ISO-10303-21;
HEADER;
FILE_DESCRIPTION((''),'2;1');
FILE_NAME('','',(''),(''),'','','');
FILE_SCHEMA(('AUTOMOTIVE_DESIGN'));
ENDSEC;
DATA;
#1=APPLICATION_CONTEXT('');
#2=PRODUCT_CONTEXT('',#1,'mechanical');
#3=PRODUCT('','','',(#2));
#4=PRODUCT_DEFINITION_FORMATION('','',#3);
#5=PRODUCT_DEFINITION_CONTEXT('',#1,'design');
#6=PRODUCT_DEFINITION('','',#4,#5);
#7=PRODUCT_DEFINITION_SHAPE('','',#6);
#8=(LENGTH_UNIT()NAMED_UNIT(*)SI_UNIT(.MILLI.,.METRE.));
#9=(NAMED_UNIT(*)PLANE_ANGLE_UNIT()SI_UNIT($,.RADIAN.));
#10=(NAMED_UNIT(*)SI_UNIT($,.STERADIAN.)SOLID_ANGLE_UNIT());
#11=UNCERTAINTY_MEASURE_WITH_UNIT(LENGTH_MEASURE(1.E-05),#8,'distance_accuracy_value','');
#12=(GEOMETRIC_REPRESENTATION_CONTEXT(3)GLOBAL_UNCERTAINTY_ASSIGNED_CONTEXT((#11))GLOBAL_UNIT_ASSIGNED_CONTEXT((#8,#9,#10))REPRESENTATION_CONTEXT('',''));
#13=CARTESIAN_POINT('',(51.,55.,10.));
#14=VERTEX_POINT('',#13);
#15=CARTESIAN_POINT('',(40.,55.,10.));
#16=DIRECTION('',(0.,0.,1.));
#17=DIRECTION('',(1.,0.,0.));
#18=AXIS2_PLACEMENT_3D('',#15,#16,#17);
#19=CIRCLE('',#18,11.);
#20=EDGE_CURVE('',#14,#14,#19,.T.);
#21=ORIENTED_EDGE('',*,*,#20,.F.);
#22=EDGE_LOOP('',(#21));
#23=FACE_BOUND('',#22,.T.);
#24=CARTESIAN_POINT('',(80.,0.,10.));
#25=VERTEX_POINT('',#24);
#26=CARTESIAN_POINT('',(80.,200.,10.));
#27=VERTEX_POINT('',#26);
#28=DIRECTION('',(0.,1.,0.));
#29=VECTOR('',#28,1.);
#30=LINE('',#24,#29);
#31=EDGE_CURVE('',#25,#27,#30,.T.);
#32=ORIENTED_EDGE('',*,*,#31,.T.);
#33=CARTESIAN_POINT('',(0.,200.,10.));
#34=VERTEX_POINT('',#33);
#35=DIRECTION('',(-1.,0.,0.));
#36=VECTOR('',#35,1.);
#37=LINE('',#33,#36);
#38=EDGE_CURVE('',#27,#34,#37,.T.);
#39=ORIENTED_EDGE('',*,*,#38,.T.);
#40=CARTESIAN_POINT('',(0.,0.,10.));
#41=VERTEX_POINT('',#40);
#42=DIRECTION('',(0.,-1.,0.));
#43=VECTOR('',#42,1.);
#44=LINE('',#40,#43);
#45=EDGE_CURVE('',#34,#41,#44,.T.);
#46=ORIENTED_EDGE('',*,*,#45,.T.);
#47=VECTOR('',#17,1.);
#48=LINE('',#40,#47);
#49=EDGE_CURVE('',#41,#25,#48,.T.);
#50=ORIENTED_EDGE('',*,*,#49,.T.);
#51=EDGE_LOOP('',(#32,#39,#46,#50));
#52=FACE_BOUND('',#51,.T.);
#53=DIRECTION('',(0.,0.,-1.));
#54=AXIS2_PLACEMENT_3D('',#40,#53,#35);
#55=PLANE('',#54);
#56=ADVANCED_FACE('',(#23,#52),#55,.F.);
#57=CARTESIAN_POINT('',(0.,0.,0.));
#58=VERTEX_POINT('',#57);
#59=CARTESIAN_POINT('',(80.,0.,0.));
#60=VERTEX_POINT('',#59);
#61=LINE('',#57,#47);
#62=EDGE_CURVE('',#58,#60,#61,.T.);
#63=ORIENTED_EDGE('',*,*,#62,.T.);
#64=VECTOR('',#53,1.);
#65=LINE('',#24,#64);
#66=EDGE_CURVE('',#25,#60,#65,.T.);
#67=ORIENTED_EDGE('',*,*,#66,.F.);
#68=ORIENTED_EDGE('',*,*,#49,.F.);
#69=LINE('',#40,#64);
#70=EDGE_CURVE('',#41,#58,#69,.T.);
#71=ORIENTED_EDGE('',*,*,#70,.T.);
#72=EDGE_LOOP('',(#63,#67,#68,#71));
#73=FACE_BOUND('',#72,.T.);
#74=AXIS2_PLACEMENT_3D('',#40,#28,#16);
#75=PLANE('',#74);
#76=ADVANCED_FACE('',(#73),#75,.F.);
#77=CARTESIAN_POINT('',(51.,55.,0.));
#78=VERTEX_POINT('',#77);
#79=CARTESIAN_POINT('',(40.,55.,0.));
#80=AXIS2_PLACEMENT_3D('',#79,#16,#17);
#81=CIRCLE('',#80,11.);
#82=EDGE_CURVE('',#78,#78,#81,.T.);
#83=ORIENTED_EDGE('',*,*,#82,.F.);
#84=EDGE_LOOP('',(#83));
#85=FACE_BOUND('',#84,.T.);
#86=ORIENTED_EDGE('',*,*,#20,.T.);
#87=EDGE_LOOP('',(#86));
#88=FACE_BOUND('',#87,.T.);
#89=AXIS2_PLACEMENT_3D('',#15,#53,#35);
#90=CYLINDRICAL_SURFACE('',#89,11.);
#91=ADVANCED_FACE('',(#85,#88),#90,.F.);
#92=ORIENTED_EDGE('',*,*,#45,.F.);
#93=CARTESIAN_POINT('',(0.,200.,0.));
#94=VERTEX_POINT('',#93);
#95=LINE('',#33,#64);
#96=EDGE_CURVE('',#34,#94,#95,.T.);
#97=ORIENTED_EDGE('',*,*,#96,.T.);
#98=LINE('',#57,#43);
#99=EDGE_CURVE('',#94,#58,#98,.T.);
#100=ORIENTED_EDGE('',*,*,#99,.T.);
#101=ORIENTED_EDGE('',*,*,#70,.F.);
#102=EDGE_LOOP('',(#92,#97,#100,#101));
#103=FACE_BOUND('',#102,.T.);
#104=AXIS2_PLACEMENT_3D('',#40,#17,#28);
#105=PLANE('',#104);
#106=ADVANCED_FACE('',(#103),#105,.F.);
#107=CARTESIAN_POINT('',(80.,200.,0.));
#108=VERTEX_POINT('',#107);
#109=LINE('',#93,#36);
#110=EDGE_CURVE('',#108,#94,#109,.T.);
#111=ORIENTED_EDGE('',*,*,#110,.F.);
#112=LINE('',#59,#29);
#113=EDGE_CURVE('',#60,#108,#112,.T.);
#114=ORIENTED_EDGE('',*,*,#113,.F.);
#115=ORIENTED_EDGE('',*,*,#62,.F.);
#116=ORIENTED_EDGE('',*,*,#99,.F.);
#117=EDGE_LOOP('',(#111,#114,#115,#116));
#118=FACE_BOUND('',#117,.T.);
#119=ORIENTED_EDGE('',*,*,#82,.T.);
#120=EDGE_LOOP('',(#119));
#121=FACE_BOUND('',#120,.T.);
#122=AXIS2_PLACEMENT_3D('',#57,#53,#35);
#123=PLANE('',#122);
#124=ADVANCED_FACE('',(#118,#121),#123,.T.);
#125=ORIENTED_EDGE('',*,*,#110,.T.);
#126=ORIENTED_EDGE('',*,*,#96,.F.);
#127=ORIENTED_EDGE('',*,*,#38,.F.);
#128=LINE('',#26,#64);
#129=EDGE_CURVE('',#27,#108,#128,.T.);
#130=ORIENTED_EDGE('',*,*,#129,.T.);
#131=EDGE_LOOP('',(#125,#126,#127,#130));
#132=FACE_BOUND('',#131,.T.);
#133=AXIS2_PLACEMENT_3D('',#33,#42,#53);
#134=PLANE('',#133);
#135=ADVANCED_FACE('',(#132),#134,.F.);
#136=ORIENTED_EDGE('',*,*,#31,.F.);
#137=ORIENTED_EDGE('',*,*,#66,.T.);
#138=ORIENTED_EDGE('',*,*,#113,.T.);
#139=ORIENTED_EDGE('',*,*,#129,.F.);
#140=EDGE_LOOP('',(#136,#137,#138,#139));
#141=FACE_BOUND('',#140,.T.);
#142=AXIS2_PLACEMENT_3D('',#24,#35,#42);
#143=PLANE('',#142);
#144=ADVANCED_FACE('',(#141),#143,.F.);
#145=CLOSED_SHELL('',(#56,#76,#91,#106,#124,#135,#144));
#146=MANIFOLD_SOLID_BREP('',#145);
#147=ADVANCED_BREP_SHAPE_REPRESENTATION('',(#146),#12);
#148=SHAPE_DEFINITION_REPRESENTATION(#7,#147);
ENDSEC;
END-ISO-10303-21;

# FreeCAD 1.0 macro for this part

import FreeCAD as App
import Part
import Sketcher


def add_polygon(sketch, points):
    """Adds a closed chain of lines whose ends are joined by coincident constraints."""
    first, n = sketch.GeometryCount, len(points)
    for a, b in zip(points, points[1:] + points[:1]):
        sketch.addGeometry(Part.LineSegment(App.Vector(*a, 0), App.Vector(*b, 0)), False)
    for i in range(n):
        sketch.addConstraint(Sketcher.Constraint("Coincident", first + i, 2, first + (i + 1) % n, 1))

doc = App.newDocument("Part")
body = doc.addObject("PartDesign::Body", "Body")

# Sketch on XY plane
sketch1 = body.newObject("Sketcher::SketchObject", "Sketch")
sketch1.AttachmentSupport = (doc.getObject("XY_Plane"), [""])
sketch1.MapMode = "FlatFace"
add_polygon(sketch1, [(0, 200), (0, 0), (80, 0), (80, 200)])  # lines 0-3
sketch1.addGeometry(Part.Circle(App.Vector(40, 55, 0), App.Vector(0, 0, 1), 11), False)  # 4
sketch1.addConstraint([
    Sketcher.Constraint("Vertical", 0),
    Sketcher.Constraint("Horizontal", 1),
    Sketcher.Constraint("Vertical", 2),
    Sketcher.Constraint("Horizontal", 3),
    Sketcher.Constraint("Coincident", 0, 2, -1, 1),
    Sketcher.Constraint("Diameter", 4, 22.0),
    Sketcher.Constraint("DistanceX", 1, 1, 1, 2, 80.0),
    Sketcher.Constraint("DistanceY", 0, 2, 0, 1, 200.0),
    Sketcher.Constraint("DistanceX", -1, 1, 4, 3, 40.0),
    Sketcher.Constraint("DistanceY", -1, 1, 4, 3, 55.0),
])
pad1 = body.newObject("PartDesign::Pad", "Pad")
pad1.Profile = sketch1
pad1.Length = 10

doc.recompute()
